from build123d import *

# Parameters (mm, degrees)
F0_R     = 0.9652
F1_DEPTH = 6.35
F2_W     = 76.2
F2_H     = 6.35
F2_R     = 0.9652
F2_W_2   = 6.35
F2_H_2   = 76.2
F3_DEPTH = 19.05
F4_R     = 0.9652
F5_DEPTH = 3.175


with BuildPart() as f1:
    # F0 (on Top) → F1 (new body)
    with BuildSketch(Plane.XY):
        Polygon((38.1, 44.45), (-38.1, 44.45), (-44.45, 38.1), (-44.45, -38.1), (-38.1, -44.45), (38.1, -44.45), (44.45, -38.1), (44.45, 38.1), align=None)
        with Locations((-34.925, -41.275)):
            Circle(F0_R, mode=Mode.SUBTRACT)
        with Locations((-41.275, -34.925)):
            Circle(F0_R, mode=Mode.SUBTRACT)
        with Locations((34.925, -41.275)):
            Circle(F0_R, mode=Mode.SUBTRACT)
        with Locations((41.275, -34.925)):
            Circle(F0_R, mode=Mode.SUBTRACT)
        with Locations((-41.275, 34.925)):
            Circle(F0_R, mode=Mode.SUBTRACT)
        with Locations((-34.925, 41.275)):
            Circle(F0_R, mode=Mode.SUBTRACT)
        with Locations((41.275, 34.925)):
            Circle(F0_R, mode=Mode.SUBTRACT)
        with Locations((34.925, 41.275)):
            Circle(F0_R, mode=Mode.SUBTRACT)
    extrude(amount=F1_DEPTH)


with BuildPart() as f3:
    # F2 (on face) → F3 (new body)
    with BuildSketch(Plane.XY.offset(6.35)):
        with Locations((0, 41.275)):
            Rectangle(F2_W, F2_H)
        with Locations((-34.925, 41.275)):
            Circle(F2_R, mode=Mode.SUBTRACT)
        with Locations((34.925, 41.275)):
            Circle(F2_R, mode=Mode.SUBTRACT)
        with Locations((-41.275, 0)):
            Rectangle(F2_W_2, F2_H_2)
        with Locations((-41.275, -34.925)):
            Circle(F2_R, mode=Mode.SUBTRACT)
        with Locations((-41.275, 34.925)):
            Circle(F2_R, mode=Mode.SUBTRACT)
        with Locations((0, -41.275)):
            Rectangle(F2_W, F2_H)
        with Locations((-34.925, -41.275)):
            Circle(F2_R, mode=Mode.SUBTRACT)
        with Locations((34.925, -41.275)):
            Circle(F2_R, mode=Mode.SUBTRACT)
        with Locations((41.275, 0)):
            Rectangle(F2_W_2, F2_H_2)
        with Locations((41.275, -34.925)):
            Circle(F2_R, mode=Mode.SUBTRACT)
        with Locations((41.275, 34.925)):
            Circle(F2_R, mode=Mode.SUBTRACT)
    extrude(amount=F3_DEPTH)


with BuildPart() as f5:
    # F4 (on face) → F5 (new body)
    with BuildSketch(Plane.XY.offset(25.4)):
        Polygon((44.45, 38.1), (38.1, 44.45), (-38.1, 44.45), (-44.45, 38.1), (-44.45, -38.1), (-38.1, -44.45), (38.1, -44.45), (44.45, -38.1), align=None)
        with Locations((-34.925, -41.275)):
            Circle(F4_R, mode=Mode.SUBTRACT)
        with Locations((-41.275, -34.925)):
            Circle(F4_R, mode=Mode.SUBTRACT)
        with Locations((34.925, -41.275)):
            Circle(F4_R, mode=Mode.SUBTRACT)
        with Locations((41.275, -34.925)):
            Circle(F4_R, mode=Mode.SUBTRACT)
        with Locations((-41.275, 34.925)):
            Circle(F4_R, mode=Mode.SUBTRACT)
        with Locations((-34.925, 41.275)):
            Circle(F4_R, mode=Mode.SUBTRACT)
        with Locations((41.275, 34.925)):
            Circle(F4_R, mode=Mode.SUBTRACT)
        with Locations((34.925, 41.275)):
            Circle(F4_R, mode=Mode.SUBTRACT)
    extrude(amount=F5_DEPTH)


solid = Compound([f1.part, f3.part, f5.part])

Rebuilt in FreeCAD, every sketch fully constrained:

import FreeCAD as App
import Part
import Sketcher
from FreeCAD import Vector
Q = App.Units.Quantity


def add_polygon(sketch, points):
    """Adds a closed chain of lines whose ends are joined by coincident constraints."""
    first, n = sketch.GeometryCount, len(points)
    for a, b in zip(points, points[1:] + points[:1]):
        sketch.addGeometry(Part.LineSegment(App.Vector(*a, 0), App.Vector(*b, 0)), False)
    for i in range(n):
        sketch.addConstraint(Sketcher.Constraint("Coincident", first + i, 2, first + (i + 1) % n, 1))

doc = App.newDocument("Part")
body = doc.addObject("PartDesign::Body", "Body")

# Sketch on XY plane
sketch1 = body.newObject("Sketcher::SketchObject", "Sketch")
sketch1.AttachmentSupport = (doc.getObject("XY_Plane"), [""])
sketch1.MapMode = "FlatFace"
add_polygon(sketch1, [(38.1, 44.5), (-38.1, 44.5), (-44.5, 38.1), (-44.5, -38.1), (-38.1, -44.5), (38.1, -44.5), (44.5, -38.1), (44.5, 38.1)])  # lines 0-7
sketch1.addGeometry(Part.Circle(Vector(-34.9, -41.3, 0), Vector(0, 0, 1), 1), False)  # 8
sketch1.addGeometry(Part.Circle(Vector(-41.3, -34.9, 0), Vector(0, 0, 1), 1), False)  # 9
sketch1.addGeometry(Part.Circle(Vector(34.9, -41.3, 0), Vector(0, 0, 1), 1), False)  # 10
sketch1.addGeometry(Part.Circle(Vector(41.3, -34.9, 0), Vector(0, 0, 1), 1), False)  # 11
sketch1.addGeometry(Part.Circle(Vector(-41.3, 34.9, 0), Vector(0, 0, 1), 1), False)  # 12
sketch1.addGeometry(Part.Circle(Vector(-34.9, 41.3, 0), Vector(0, 0, 1), 1), False)  # 13
sketch1.addGeometry(Part.Circle(Vector(41.3, 34.9, 0), Vector(0, 0, 1), 1), False)  # 14
sketch1.addGeometry(Part.Circle(Vector(34.9, 41.3, 0), Vector(0, 0, 1), 1), False)  # 15
sketch1.addConstraint(Sketcher.Constraint("Horizontal", 0))
sketch1.addConstraint(Sketcher.Constraint("Vertical", 2))
sketch1.addConstraint(Sketcher.Constraint("Horizontal", 4))
sketch1.addConstraint(Sketcher.Constraint("Vertical", 6))
sketch1.addConstraint(Sketcher.Constraint("Equal", 8, 9))
sketch1.addConstraint(Sketcher.Constraint("Equal", 9, 10))
sketch1.addConstraint(Sketcher.Constraint("Equal", 10, 11))
sketch1.addConstraint(Sketcher.Constraint("Equal", 11, 12))
sketch1.addConstraint(Sketcher.Constraint("Equal", 12, 13))
sketch1.addConstraint(Sketcher.Constraint("Equal", 13, 14))
sketch1.addConstraint(Sketcher.Constraint("Equal", 14, 15))
sketch1.addConstraint(Sketcher.Constraint("Symmetric", 11, 3, 12, 3, -1, 1))
sketch1.addConstraint(Sketcher.Constraint("Symmetric", 10, 3, 13, 3, -1, 1))
sketch1.addConstraint(Sketcher.Constraint("Symmetric", 9, 3, 14, 3, -1, 1))
sketch1.addConstraint(Sketcher.Constraint("Symmetric", 8, 3, 15, 3, -1, 1))
sketch1.addConstraint(Sketcher.Constraint("Symmetric", 0, 2, 4, 2, -1, 1))
sketch1.addConstraint(Sketcher.Constraint("Symmetric", 1, 2, 5, 2, -1, 1))
sketch1.addConstraint(Sketcher.Constraint("Symmetric", 8, 3, 10, 3, -2))
sketch1.addConstraint(Sketcher.Constraint("Symmetric", 9, 3, 11, 3, -2))
sketch1.addConstraint(Sketcher.Constraint("Perpendicular", 1, 3))
sketch1.addConstraint(Sketcher.Constraint("Perpendicular", 5, 7))
sketch1.addConstraint(Sketcher.Constraint("Horizontal", 2, 2, 5, 2))
sketch1.addConstraint(Sketcher.Constraint("Horizontal", 1, 2, 6, 2))
sketch1.addConstraint(Sketcher.Constraint("Vertical", 0, 2, 3, 2))
sketch1.addConstraint(Sketcher.Constraint("Equal", 4, 2))
sketch1.addConstraint(Sketcher.Constraint("DistanceX", 0, 2, 0, 1, Q("3 in")))
sketch1.addConstraint(Sketcher.Constraint("Diameter", 8, Q("0.076 in")))
sketch1.addConstraint(Sketcher.Constraint("DistanceX", 9, 3, 10, 3, Q("3 in")))
sketch1.addConstraint(Sketcher.Constraint("DistanceY", 8, 3, 12, 3, Q("3 in")))
sketch1.addConstraint(Sketcher.Constraint("DistanceY", -1, 1, 0, 2, Q("1.75 in")))
sketch1.addConstraint(Sketcher.Constraint("DistanceX", 9, 3, 8, 3, Q("0.25 in")))
sketch1.addConstraint(Sketcher.Constraint("DistanceY", 8, 3, 9, 3, Q("0.25 in")))
pad1 = body.newObject("PartDesign::Pad", "Pad")
pad1.Profile = sketch1
pad1.Length = Q("0.25 in")
body2 = doc.addObject("PartDesign::Body", "Body001")
body2.AllowCompound = True

# Sketch on XY plane
sketch2 = body2.newObject("Sketcher::SketchObject", "Sketch001")
sketch2.AttachmentSupport = (doc.getObject("XY_Plane001"), [""])
sketch2.MapMode = "FlatFace"
sketch2.AttachmentOffset = App.Placement(Vector(0, 0, 0.25 * 25.4), App.Rotation())
add_polygon(sketch2, [(-38.1, 44.5), (-38.1, 38.1), (38.1, 38.1), (38.1, 44.5)])  # lines 0-3
sketch2.addGeometry(Part.Circle(Vector(-34.9, 41.3, 0), Vector(0, 0, 1), 1), False)  # 4
sketch2.addGeometry(Part.Circle(Vector(34.9, 41.3, 0), Vector(0, 0, 1), 1), False)  # 5
add_polygon(sketch2, [(-44.5, 38.1), (-44.5, -38.1), (-38.1, -38.1), (-38.1, 38.1)])  # lines 6-9
sketch2.addGeometry(Part.Circle(Vector(-41.3, -34.9, 0), Vector(0, 0, 1), 1), False)  # 10
sketch2.addGeometry(Part.Circle(Vector(-41.3, 34.9, 0), Vector(0, 0, 1), 1), False)  # 11
add_polygon(sketch2, [(-38.1, -38.1), (-38.1, -44.5), (38.1, -44.5), (38.1, -38.1)])  # lines 12-15
sketch2.addGeometry(Part.Circle(Vector(-34.9, -41.3, 0), Vector(0, 0, 1), 1), False)  # 16
sketch2.addGeometry(Part.Circle(Vector(34.9, -41.3, 0), Vector(0, 0, 1), 1), False)  # 17
add_polygon(sketch2, [(38.1, 38.1), (38.1, -38.1), (44.5, -38.1), (44.5, 38.1)])  # lines 18-21
sketch2.addGeometry(Part.Circle(Vector(41.3, -34.9, 0), Vector(0, 0, 1), 1), False)  # 22
sketch2.addGeometry(Part.Circle(Vector(41.3, 34.9, 0), Vector(0, 0, 1), 1), False)  # 23
sketch2.addConstraint(Sketcher.Constraint("Vertical", 0))
sketch2.addConstraint(Sketcher.Constraint("Horizontal", 1))
sketch2.addConstraint(Sketcher.Constraint("Vertical", 2))
sketch2.addConstraint(Sketcher.Constraint("Horizontal", 3))
sketch2.addConstraint(Sketcher.Constraint("Vertical", 6))
sketch2.addConstraint(Sketcher.Constraint("Horizontal", 7))
sketch2.addConstraint(Sketcher.Constraint("Vertical", 8))
sketch2.addConstraint(Sketcher.Constraint("Horizontal", 9))
sketch2.addConstraint(Sketcher.Constraint("Vertical", 12))
sketch2.addConstraint(Sketcher.Constraint("Horizontal", 13))
sketch2.addConstraint(Sketcher.Constraint("Vertical", 14))
sketch2.addConstraint(Sketcher.Constraint("Horizontal", 15))
sketch2.addConstraint(Sketcher.Constraint("Vertical", 18))
sketch2.addConstraint(Sketcher.Constraint("Horizontal", 19))
sketch2.addConstraint(Sketcher.Constraint("Vertical", 20))
sketch2.addConstraint(Sketcher.Constraint("Horizontal", 21))
sketch2.addConstraint(Sketcher.Constraint("Coincident", 8, 2, 0, 2))
sketch2.addConstraint(Sketcher.Constraint("Coincident", 15, 2, 7, 2))
sketch2.addConstraint(Sketcher.Constraint("Coincident", 18, 2, 14, 2))
sketch2.addConstraint(Sketcher.Constraint("Coincident", 21, 2, 1, 2))
sketch2.addConstraint(Sketcher.Constraint("Equal", 4, 5))
sketch2.addConstraint(Sketcher.Constraint("Equal", 5, 10))
sketch2.addConstraint(Sketcher.Constraint("Equal", 10, 11))
sketch2.addConstraint(Sketcher.Constraint("Equal", 11, 16))
sketch2.addConstraint(Sketcher.Constraint("Equal", 16, 17))
sketch2.addConstraint(Sketcher.Constraint("Equal", 17, 22))
sketch2.addConstraint(Sketcher.Constraint("Equal", 22, 23))
sketch2.addConstraint(Sketcher.Constraint("Symmetric", 5, 3, 16, 3, -1, 1))
sketch2.addConstraint(Sketcher.Constraint("Symmetric", 4, 3, 17, 3, -1, 1))
sketch2.addConstraint(Sketcher.Constraint("Symmetric", 11, 3, 22, 3, -1, 1))
sketch2.addConstraint(Sketcher.Constraint("Symmetric", 10, 3, 23, 3, -1, 1))
sketch2.addConstraint(Sketcher.Constraint("Symmetric", 1, 2, 7, 2, -1, 1))
sketch2.addConstraint(Sketcher.Constraint("Symmetric", 4, 3, 5, 3, -2))
sketch2.addConstraint(Sketcher.Constraint("Symmetric", 10, 3, 22, 3, -2))
sketch2.addConstraint(Sketcher.Constraint("Equal", 9, 19))
sketch2.addConstraint(Sketcher.Constraint("Equal", 21, 0))
sketch2.addConstraint(Sketcher.Constraint("Equal", 15, 6))
sketch2.addConstraint(Sketcher.Constraint("Equal", 2, 12))
sketch2.addConstraint(Sketcher.Constraint("DistanceX", 1, 1, 1, 2, Q("3 in")))
sketch2.addConstraint(Sketcher.Constraint("Diameter", 4, Q("0.076 in")))
sketch2.addConstraint(Sketcher.Constraint("DistanceY", 10, 3, 4, 3, Q("3 in")))
sketch2.addConstraint(Sketcher.Constraint("DistanceX", 10, 3, 5, 3, Q("3 in")))
sketch2.addConstraint(Sketcher.Constraint("DistanceX", 7, 1, 7, 2, Q("0.25 in")))
sketch2.addConstraint(Sketcher.Constraint("DistanceX", 4, 3, 5, 3, Q("2.75 in")))
sketch2.addConstraint(Sketcher.Constraint("DistanceY", 11, 3, 4, 3, Q("0.25 in")))
pad2 = body2.newObject("PartDesign::Pad", "Pad001")
pad2.Profile = sketch2
pad2.Length = Q("0.75 in")
body3 = doc.addObject("PartDesign::Body", "Body002")

# Sketch on XY plane
sketch3 = body3.newObject("Sketcher::SketchObject", "Sketch002")
sketch3.AttachmentSupport = (doc.getObject("XY_Plane002"), [""])
sketch3.MapMode = "FlatFace"
sketch3.AttachmentOffset = App.Placement(Vector(0, 0, 1 * 25.4), App.Rotation())
add_polygon(sketch3, [(44.5, 38.1), (38.1, 44.5), (-38.1, 44.5), (-44.5, 38.1), (-44.5, -38.1), (-38.1, -44.5), (38.1, -44.5), (44.5, -38.1)])  # lines 0-7
sketch3.addGeometry(Part.Circle(Vector(-34.9, -41.3, 0), Vector(0, 0, 1), 1), False)  # 8
sketch3.addGeometry(Part.Circle(Vector(-41.3, -34.9, 0), Vector(0, 0, 1), 1), False)  # 9
sketch3.addGeometry(Part.Circle(Vector(34.9, -41.3, 0), Vector(0, 0, 1), 1), False)  # 10
sketch3.addGeometry(Part.Circle(Vector(41.3, -34.9, 0), Vector(0, 0, 1), 1), False)  # 11
sketch3.addGeometry(Part.Circle(Vector(-41.3, 34.9, 0), Vector(0, 0, 1), 1), False)  # 12
sketch3.addGeometry(Part.Circle(Vector(-34.9, 41.3, 0), Vector(0, 0, 1), 1), False)  # 13
sketch3.addGeometry(Part.Circle(Vector(41.3, 34.9, 0), Vector(0, 0, 1), 1), False)  # 14
sketch3.addGeometry(Part.Circle(Vector(34.9, 41.3, 0), Vector(0, 0, 1), 1), False)  # 15
sketch3.addConstraint(Sketcher.Constraint("Horizontal", 1))
sketch3.addConstraint(Sketcher.Constraint("Vertical", 3))
sketch3.addConstraint(Sketcher.Constraint("Horizontal", 5))
sketch3.addConstraint(Sketcher.Constraint("Vertical", 7))
sketch3.addConstraint(Sketcher.Constraint("Equal", 8, 9))
sketch3.addConstraint(Sketcher.Constraint("Equal", 9, 10))
sketch3.addConstraint(Sketcher.Constraint("Equal", 10, 11))
sketch3.addConstraint(Sketcher.Constraint("Equal", 11, 12))
sketch3.addConstraint(Sketcher.Constraint("Equal", 12, 13))
sketch3.addConstraint(Sketcher.Constraint("Equal", 13, 14))
sketch3.addConstraint(Sketcher.Constraint("Equal", 14, 15))
sketch3.addConstraint(Sketcher.Constraint("Symmetric", 11, 3, 12, 3, -1, 1))
sketch3.addConstraint(Sketcher.Constraint("Symmetric", 10, 3, 13, 3, -1, 1))
sketch3.addConstraint(Sketcher.Constraint("Symmetric", 9, 3, 14, 3, -1, 1))
sketch3.addConstraint(Sketcher.Constraint("Symmetric", 8, 3, 15, 3, -1, 1))
sketch3.addConstraint(Sketcher.Constraint("Symmetric", 0, 2, 4, 2, -1, 1))
sketch3.addConstraint(Sketcher.Constraint("Symmetric", 2, 2, 6, 2, -1, 1))
sketch3.addConstraint(Sketcher.Constraint("Symmetric", 8, 3, 10, 3, -2))
sketch3.addConstraint(Sketcher.Constraint("Symmetric", 9, 3, 11, 3, -2))
sketch3.addConstraint(Sketcher.Constraint("Perpendicular", 0, 2))
sketch3.addConstraint(Sketcher.Constraint("Perpendicular", 2, 4))
sketch3.addConstraint(Sketcher.Constraint("Perpendicular", 4, 6))
sketch3.addConstraint(Sketcher.Constraint("Horizontal", 3, 2, 6, 2))
sketch3.addConstraint(Sketcher.Constraint("Vertical", 1, 2, 4, 2))
sketch3.addConstraint(Sketcher.Constraint("Equal", 5, 3))
sketch3.addConstraint(Sketcher.Constraint("DistanceX", 1, 2, 1, 1, Q("3 in")))
sketch3.addConstraint(Sketcher.Constraint("Diameter", 8, Q("0.076 in")))
sketch3.addConstraint(Sketcher.Constraint("DistanceX", 9, 3, 10, 3, Q("3 in")))
sketch3.addConstraint(Sketcher.Constraint("DistanceY", 8, 3, 12, 3, Q("3 in")))
sketch3.addConstraint(Sketcher.Constraint("DistanceY", -1, 1, 0, 2, Q("1.75 in")))
sketch3.addConstraint(Sketcher.Constraint("DistanceX", 9, 3, 8, 3, Q("0.25 in")))
sketch3.addConstraint(Sketcher.Constraint("DistanceY", 8, 3, 9, 3, Q("0.25 in")))
pad3 = body3.newObject("PartDesign::Pad", "Pad002")
pad3.Profile = sketch3
pad3.Length = Q("0.125 in")

doc.recompute()
